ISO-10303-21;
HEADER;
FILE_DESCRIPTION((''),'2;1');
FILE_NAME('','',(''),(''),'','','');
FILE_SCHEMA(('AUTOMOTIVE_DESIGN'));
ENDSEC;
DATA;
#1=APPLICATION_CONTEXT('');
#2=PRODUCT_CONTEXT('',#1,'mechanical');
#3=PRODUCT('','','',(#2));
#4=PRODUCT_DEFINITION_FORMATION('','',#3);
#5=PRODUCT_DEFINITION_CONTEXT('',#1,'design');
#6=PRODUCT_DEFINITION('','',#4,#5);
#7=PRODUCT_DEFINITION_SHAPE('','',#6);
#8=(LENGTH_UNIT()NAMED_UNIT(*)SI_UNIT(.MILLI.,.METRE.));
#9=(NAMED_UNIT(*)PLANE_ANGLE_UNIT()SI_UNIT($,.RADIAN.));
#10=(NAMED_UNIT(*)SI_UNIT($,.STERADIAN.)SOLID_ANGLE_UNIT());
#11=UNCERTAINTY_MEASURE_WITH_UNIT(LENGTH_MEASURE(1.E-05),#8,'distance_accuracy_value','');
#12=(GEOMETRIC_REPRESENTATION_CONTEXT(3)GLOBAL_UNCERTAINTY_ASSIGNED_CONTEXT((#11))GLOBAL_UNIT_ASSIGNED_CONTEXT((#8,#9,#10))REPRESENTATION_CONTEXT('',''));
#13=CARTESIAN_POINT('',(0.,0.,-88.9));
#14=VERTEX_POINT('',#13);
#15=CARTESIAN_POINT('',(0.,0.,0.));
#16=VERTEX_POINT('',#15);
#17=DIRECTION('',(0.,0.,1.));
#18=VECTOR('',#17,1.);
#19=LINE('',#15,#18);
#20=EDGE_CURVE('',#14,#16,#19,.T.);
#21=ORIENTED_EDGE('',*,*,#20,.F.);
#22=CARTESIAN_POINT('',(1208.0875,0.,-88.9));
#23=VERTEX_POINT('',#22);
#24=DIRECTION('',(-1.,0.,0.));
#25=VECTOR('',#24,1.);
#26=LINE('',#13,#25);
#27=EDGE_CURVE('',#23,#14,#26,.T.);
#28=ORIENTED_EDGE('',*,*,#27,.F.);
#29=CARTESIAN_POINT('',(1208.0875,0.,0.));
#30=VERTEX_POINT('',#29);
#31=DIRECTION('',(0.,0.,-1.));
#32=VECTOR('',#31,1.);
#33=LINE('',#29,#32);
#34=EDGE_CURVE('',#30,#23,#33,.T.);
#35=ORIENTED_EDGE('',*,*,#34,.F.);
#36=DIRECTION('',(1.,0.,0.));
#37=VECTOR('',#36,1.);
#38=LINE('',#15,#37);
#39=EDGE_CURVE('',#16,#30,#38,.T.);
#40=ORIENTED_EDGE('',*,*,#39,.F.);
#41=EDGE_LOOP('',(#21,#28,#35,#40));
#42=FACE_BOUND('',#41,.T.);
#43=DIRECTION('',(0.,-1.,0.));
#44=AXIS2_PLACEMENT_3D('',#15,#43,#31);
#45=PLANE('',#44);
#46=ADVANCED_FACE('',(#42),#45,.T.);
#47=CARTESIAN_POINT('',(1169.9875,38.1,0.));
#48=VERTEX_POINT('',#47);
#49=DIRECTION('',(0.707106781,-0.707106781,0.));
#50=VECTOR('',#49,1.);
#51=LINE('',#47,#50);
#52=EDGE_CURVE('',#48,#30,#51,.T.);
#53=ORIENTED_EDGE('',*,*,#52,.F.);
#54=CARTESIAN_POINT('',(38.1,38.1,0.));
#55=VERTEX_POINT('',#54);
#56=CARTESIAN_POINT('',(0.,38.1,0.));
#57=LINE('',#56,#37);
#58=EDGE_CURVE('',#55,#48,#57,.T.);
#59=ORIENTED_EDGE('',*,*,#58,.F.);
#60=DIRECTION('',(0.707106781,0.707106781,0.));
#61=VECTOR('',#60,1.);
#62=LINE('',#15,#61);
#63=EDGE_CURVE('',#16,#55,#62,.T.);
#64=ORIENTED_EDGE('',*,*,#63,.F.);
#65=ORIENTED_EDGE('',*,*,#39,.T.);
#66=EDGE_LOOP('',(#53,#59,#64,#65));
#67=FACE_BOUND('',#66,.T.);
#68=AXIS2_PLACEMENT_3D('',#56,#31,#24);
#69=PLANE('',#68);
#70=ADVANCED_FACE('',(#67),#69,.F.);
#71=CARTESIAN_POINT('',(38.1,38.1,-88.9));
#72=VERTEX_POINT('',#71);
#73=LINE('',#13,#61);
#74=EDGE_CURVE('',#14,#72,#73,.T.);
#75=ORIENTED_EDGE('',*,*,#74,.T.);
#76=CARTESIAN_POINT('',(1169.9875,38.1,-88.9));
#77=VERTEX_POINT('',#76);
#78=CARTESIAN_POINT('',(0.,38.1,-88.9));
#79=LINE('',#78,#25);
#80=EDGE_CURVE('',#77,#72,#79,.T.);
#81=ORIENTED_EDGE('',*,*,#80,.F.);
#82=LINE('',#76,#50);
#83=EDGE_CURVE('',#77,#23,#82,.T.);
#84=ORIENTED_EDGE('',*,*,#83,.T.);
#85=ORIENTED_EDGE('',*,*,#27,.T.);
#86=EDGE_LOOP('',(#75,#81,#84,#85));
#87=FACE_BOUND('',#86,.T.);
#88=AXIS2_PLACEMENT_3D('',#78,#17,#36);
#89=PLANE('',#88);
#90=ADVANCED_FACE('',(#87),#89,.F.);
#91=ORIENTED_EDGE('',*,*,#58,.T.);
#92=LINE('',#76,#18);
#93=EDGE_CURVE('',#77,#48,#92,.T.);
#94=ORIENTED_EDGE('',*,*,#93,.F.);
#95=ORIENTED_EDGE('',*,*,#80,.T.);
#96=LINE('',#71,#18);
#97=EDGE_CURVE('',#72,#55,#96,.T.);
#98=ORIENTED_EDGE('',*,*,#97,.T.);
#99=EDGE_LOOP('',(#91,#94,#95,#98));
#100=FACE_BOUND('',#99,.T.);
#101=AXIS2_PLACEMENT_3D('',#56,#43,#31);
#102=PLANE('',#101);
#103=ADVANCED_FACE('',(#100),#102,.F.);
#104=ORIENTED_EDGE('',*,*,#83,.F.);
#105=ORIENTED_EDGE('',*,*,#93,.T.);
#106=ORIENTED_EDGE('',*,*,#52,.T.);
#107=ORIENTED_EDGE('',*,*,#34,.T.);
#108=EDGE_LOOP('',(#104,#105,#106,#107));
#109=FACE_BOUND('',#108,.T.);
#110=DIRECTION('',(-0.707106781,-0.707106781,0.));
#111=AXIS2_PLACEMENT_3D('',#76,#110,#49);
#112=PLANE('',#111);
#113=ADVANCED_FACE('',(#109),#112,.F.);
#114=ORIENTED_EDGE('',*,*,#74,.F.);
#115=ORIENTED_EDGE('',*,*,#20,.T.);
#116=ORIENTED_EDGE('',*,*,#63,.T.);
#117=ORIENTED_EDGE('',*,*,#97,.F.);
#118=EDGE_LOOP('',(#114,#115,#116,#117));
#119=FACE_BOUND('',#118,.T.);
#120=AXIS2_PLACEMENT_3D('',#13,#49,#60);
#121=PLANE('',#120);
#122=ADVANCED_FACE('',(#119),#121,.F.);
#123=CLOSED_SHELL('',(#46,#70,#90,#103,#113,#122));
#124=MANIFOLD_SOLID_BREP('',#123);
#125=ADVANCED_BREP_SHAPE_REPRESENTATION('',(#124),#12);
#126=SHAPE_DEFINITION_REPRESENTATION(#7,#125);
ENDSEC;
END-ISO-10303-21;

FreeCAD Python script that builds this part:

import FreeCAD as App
import Part
import Sketcher

V = App.Vector
Q = App.Units.Quantity

doc = App.newDocument("Part")
body = doc.addObject("PartDesign::Body", "Body")

sketch1 = body.newObject("Sketcher::SketchObject", "Sketch")
sketch1.AttachmentSupport = (doc.getObject("XZ_Plane"), [""])
sketch1.MapMode = "FlatFace"
sketch1.addGeometry([
    Part.LineSegment(V(0, -89, 0), V(0, 0, 0)),
    Part.LineSegment(V(0, 0, 0), V(1208, 0, 0)),
    Part.LineSegment(V(1208, 0, 0), V(1208, -89, 0)),
    Part.LineSegment(V(1208, -89, 0), V(0, -89, 0)),
], False)
sketch1.addConstraint([
    Sketcher.Constraint("Coincident", 0, 2, 1, 1),
    Sketcher.Constraint("Coincident", 1, 2, 2, 1),
    Sketcher.Constraint("Coincident", 2, 2, 3, 1),
    Sketcher.Constraint("Coincident", 3, 2, 0, 1),
    Sketcher.Constraint("Vertical", 0),
    Sketcher.Constraint("Horizontal", 1),
    Sketcher.Constraint("Vertical", 2),
    Sketcher.Constraint("Horizontal", 3),
    Sketcher.Constraint("Coincident", 0, 2, -1, 1),
    Sketcher.Constraint("DistanceY", 0, 1, 0, 2, Q("3.5 in")),
    Sketcher.Constraint("DistanceX", 1, 1, 1, 2, Q("47.5625 in")),
])
pad1 = body.newObject("PartDesign::Pad", "Pad")
pad1.Profile = sketch1
pad1.Length = Q("1.5 in")
pad1.Reversed = True

sketch2 = body.newObject("Sketcher::SketchObject", "Sketch001")
sketch2.AttachmentSupport = (doc.getObject("XY_Plane"), [""])
sketch2.MapMode = "FlatFace"
sketch2.addGeometry([
    Part.LineSegment(V(0, 0, 0), V(38, 38, 0)),
    Part.LineSegment(V(38, 38, 0), V(0, 38, 0)),
    Part.LineSegment(V(0, 38, 0), V(0, 0, 0)),
    Part.LineSegment(V(1208, 0, 0), V(1208, 38, 0)),
    Part.LineSegment(V(1208, 38, 0), V(1170, 38, 0)),
    Part.LineSegment(V(1170, 38, 0), V(1208, 0, 0)),
], False)
sketch2.addConstraint([
    Sketcher.Constraint("Coincident", 0, 2, 1, 1),
    Sketcher.Constraint("Coincident", 1, 2, 2, 1),
    Sketcher.Constraint("Coincident", 2, 2, 0, 1),
    Sketcher.Constraint("Coincident", 3, 2, 4, 1),
    Sketcher.Constraint("Coincident", 4, 2, 5, 1),
    Sketcher.Constraint("Coincident", 5, 2, 3, 1),
    Sketcher.Constraint("Horizontal", 1),
    Sketcher.Constraint("Vertical", 2),
    Sketcher.Constraint("Vertical", 3),
    Sketcher.Constraint("Horizontal", 4),
    Sketcher.Constraint("Coincident", 2, 2, -1, 1),
    Sketcher.Constraint("PointOnObject", 5, 2, -1),
    Sketcher.Constraint("Perpendicular", 0, 5),
    Sketcher.Constraint("Horizontal", 1, 2, 3, 2),
    Sketcher.Constraint("Equal", 1, 4),
    Sketcher.Constraint("DistanceX", 1, 2, 1, 1, Q("1.5 in")),
    Sketcher.Constraint("DistanceX", -1, 1, 3, 2, Q("47.5625 in")),
])
pocket1 = body.newObject("PartDesign::Pocket", "Pocket")
pocket1.Profile = sketch2
pocket1.Type = "ThroughAll"

doc.recompute()
